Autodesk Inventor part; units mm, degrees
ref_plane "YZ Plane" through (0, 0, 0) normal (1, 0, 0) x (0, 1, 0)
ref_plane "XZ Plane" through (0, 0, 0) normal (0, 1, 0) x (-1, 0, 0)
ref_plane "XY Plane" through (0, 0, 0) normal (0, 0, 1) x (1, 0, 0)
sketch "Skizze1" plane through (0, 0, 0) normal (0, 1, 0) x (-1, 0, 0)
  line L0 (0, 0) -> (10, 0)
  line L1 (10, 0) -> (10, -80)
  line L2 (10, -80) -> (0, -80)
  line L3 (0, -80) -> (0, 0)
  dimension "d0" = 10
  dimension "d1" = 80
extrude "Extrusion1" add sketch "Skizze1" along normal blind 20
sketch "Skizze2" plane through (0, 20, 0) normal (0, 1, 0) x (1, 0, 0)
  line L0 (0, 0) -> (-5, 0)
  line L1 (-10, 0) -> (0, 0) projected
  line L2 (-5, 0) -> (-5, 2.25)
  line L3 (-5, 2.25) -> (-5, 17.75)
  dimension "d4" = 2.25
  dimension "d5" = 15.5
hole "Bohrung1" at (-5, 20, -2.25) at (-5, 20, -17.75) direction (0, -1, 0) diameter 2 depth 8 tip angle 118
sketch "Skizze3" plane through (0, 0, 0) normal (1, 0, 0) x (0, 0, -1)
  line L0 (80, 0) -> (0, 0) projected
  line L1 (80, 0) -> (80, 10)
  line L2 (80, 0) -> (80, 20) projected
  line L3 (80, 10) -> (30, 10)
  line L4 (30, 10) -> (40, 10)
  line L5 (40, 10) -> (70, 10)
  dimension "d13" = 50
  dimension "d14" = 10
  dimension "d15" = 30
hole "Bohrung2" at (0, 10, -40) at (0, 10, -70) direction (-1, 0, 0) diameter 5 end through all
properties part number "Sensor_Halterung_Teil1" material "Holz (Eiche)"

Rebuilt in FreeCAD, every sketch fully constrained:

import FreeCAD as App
import Part
import Sketcher

V = App.Vector

doc = App.newDocument("Part")
params = doc.addObject("Spreadsheet::Sheet", "Params")
for row, (alias, value) in enumerate([
    ("sketch1_width", "10 mm"),
    ("sketch1_height", "80 mm"),
    ("pad1_length", "20 mm"),
    ("sketch2_diameter", "2 mm"),
    ("hole_diameter", "2 mm"),
    ("hole_depth", "8 mm"),
    ("sketch3_diameter", "5 mm"),
    ("hole2_diameter", "5 mm"),
], start=1):
    params.set(f"A{row}", alias)
    params.set(f"B{row}", "=" + value)
    params.setAlias(f"B{row}", alias)

body = doc.addObject("PartDesign::Body", "Body")

# Sketch on XZ plane
sketch1 = body.newObject("Sketcher::SketchObject", "Sketch")
sketch1.AttachmentSupport = (doc.getObject("XZ_Plane"), [""])
sketch1.MapMode = "FlatFace"
sketch1.addGeometry([
    Part.LineSegment(V(-10, 0, 0), V(0, 0, 0)),
    Part.LineSegment(V(0, 0, 0), V(0, -80, 0)),
    Part.LineSegment(V(0, -80, 0), V(-10, -80, 0)),
    Part.LineSegment(V(-10, -80, 0), V(-10, 0, 0)),
], False)
sketch1.addConstraint([
    Sketcher.Constraint("Coincident", 0, 2, 1, 1),
    Sketcher.Constraint("Coincident", 1, 2, 2, 1),
    Sketcher.Constraint("Coincident", 2, 2, 3, 1),
    Sketcher.Constraint("Coincident", 3, 2, 0, 1),
    Sketcher.Constraint("Horizontal", 0),
    Sketcher.Constraint("Vertical", 1),
    Sketcher.Constraint("Horizontal", 2),
    Sketcher.Constraint("Vertical", 3),
    Sketcher.Constraint("Coincident", 0, 2, -1, 1),
    Sketcher.Constraint("DistanceX", 0, 1, 0, 2, 10.0),
    Sketcher.Constraint("DistanceY", 1, 2, 1, 1, 80.0),
])
sketch1.setExpression("Constraints[9]", "Params.sketch1_width")
sketch1.setExpression("Constraints[10]", "Params.sketch1_height")
pad1 = body.newObject("PartDesign::Pad", "Pad")
pad1.Profile = sketch1
pad1.setExpression("Length", "Params.pad1_length")
pad1.Reversed = True

# Sketch on XZ plane
sketch2 = body.newObject("Sketcher::SketchObject", "Sketch001")
sketch2.AttachmentSupport = (doc.getObject("XZ_Plane"), [""])
sketch2.MapMode = "FlatFace"
sketch2.AttachmentOffset = App.Placement(V(0, 0, -20), App.Rotation())
sketch2.addGeometry([
    Part.Circle(V(-5, -2.25, 0), V(0, 0, 1), 1),
    Part.Circle(V(-5, -17.75, 0), V(0, 0, 1), 1),
], False)
sketch2.addConstraint([
    Sketcher.Constraint("Equal", 0, 1),
    Sketcher.Constraint("Vertical", 0, 3, 1, 3),
    Sketcher.Constraint("Diameter", 0, 2.0),
    Sketcher.Constraint("DistanceX", 0, 3, -1, 1, 5.0),
    Sketcher.Constraint("DistanceY", 1, 3, 0, 3, 15.5),
    Sketcher.Constraint("DistanceY", 0, 3, -1, 1, 2.25),
])
sketch2.setExpression("Constraints[2]", "Params.sketch2_diameter")
doc.recompute()
hole = body.newObject("PartDesign::Hole", "Hole")
hole.Profile = sketch2
hole.ThreadType = "None"
hole.setExpression("Diameter", "Params.hole_diameter")
hole.DepthType = "Dimension"
hole.setExpression("Depth", "Params.hole_depth")
hole.DrillPoint = "Angled"
hole.DrillPointAngle = 118
hole.Reversed = True

# Sketch on YZ plane
sketch3 = body.newObject("Sketcher::SketchObject", "Sketch002")
sketch3.AttachmentSupport = (doc.getObject("YZ_Plane"), [""])
sketch3.MapMode = "FlatFace"
sketch3.addGeometry([
    Part.Circle(V(10, -40, 0), V(0, 0, 1), 2.5),
    Part.Circle(V(10, -70, 0), V(0, 0, 1), 2.5),
], False)
sketch3.addConstraint([
    Sketcher.Constraint("Equal", 0, 1),
    Sketcher.Constraint("Vertical", 0, 3, 1, 3),
    Sketcher.Constraint("Diameter", 0, 5.0),
    Sketcher.Constraint("DistanceX", -1, 1, 0, 3, 10.0),
    Sketcher.Constraint("DistanceY", 0, 3, -1, 1, 40.0),
    Sketcher.Constraint("DistanceY", 1, 3, -1, 1, 70.0),
])
sketch3.setExpression("Constraints[2]", "Params.sketch3_diameter")
doc.recompute()
hole2 = body.newObject("PartDesign::Hole", "Hole001")
hole2.Profile = sketch3
hole2.ThreadType = "None"
hole2.setExpression("Diameter", "Params.hole2_diameter")
hole2.DepthType = "ThroughAll"

doc.recompute()
